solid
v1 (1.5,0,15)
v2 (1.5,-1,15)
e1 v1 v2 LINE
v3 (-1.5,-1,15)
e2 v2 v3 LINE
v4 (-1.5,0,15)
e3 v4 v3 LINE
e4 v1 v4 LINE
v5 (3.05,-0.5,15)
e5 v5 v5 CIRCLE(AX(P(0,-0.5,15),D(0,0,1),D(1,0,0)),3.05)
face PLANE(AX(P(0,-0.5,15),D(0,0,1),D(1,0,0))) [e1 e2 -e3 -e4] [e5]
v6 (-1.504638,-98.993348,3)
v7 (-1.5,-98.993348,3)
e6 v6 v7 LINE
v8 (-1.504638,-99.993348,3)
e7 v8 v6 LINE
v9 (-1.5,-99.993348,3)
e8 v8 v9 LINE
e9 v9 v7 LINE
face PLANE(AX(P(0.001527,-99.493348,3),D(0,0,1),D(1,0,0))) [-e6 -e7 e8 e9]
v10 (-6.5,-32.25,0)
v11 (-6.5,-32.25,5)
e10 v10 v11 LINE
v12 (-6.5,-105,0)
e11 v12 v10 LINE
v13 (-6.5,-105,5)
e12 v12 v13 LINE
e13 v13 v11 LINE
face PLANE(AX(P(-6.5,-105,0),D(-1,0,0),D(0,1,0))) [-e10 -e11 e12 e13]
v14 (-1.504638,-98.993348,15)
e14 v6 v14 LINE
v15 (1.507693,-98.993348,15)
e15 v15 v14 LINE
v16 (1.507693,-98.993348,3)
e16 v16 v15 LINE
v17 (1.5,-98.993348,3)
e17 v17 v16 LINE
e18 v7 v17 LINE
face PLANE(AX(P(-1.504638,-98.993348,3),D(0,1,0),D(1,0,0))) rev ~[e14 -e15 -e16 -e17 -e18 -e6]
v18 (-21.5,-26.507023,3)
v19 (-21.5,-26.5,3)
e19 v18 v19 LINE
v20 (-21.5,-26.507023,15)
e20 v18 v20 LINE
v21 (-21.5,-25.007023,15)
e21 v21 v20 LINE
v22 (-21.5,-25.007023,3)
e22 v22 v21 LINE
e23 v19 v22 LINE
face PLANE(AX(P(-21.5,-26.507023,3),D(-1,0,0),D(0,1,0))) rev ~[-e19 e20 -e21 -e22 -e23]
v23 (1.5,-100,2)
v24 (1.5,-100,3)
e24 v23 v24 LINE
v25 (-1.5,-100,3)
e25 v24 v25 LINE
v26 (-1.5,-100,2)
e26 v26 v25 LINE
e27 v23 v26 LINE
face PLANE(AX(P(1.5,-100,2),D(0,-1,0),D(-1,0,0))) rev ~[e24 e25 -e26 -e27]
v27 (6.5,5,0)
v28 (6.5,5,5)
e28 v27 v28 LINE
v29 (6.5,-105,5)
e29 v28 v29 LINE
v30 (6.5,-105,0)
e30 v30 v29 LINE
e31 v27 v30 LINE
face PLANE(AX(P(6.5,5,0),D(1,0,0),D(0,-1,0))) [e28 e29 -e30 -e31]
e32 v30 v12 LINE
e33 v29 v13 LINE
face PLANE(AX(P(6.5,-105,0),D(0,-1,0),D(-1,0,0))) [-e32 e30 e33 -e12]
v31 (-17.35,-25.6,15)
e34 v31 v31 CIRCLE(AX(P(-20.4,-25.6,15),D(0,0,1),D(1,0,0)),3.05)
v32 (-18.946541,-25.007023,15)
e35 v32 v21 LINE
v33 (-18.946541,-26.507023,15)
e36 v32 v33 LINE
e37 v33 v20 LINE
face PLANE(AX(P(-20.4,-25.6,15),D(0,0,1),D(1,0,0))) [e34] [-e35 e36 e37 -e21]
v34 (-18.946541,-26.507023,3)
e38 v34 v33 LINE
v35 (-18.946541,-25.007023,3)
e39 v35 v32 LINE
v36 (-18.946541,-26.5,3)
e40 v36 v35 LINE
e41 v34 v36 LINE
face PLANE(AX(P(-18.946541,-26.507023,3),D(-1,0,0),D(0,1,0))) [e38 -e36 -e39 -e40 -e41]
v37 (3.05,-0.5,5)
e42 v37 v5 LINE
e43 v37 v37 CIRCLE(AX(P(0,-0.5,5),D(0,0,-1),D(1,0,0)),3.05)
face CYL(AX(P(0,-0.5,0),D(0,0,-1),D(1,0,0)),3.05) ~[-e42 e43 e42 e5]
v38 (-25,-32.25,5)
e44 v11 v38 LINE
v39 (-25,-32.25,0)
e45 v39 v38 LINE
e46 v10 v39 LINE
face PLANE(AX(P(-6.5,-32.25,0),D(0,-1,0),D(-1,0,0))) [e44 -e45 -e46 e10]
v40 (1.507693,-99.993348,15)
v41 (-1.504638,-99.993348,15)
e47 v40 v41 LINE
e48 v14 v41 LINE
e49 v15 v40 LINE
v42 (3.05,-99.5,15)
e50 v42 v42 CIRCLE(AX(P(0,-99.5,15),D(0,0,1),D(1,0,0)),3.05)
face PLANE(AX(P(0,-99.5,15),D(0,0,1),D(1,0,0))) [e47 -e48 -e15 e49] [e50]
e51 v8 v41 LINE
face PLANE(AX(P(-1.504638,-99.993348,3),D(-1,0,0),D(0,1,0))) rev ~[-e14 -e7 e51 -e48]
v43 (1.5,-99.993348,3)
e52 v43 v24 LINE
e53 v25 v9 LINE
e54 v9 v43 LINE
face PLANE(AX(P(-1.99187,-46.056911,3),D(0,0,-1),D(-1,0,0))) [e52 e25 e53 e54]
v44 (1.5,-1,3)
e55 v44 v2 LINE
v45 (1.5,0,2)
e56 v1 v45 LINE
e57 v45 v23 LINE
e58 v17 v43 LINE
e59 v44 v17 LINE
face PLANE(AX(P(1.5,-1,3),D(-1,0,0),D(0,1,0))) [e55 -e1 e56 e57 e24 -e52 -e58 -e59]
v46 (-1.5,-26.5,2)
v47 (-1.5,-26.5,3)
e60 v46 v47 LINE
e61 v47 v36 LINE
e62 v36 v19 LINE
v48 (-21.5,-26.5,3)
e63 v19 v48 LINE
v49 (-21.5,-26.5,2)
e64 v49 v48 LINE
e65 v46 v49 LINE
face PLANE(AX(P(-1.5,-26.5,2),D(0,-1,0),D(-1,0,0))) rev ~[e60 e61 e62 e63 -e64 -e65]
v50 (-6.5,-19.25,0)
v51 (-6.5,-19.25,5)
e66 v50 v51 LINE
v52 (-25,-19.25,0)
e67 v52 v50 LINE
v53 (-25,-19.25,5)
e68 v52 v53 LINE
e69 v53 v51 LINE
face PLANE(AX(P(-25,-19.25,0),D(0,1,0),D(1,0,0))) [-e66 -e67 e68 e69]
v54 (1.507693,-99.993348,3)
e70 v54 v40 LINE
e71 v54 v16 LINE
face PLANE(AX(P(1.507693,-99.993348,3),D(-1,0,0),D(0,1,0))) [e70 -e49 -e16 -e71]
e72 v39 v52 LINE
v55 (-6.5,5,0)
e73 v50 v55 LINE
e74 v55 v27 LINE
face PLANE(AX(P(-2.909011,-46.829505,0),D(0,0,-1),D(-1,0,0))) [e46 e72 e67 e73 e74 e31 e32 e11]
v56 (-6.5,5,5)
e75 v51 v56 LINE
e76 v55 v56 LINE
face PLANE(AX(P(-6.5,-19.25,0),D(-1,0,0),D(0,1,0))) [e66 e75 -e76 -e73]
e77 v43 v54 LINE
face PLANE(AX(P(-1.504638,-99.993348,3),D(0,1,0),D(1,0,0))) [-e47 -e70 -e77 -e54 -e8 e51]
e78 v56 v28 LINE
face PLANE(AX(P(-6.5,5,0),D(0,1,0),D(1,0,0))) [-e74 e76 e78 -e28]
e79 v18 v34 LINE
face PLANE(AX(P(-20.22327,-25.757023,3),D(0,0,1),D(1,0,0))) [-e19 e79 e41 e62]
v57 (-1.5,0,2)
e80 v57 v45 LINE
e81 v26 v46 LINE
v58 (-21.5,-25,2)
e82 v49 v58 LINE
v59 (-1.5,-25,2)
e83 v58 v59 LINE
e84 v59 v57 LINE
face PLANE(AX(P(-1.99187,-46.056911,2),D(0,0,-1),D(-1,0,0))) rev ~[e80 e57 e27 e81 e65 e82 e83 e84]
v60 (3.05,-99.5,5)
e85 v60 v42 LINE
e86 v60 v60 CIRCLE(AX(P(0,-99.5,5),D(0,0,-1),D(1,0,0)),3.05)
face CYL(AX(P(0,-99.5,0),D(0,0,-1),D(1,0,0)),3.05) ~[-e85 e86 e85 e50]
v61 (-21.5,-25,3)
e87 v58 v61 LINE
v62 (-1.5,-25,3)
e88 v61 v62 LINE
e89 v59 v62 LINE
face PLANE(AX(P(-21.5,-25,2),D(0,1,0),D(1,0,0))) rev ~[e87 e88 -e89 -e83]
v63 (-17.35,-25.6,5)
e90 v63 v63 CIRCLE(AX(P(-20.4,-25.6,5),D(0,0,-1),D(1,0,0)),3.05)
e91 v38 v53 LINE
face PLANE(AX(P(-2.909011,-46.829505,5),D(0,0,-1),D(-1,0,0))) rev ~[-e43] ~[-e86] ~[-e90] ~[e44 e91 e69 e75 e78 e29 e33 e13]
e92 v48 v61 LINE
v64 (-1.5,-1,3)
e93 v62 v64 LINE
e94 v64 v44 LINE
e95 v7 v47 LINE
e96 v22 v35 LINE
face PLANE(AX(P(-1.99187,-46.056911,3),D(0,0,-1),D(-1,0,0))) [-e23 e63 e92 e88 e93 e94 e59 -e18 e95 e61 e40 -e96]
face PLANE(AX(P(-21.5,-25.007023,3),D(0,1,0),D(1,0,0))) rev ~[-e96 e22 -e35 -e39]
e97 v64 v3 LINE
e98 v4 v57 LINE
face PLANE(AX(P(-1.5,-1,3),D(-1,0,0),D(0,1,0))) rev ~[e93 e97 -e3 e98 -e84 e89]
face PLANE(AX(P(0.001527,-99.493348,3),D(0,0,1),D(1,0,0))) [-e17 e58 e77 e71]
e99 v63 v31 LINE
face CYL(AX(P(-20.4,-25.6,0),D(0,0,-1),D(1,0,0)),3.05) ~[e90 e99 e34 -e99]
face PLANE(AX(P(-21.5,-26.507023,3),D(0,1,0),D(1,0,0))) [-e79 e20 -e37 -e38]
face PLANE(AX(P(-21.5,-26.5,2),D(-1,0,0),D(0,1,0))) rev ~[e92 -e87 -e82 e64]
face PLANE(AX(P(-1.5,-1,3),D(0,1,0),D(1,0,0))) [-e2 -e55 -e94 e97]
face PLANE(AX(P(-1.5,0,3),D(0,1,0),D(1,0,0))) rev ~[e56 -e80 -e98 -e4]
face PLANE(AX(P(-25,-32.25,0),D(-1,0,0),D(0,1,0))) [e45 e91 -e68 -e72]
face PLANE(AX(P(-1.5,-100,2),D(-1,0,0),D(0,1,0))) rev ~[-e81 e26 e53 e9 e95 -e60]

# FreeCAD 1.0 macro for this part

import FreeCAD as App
import Part
import Sketcher
from FreeCAD import Vector
Q = App.Units.Quantity

doc = App.newDocument("Part")
body = doc.addObject("PartDesign::Body", "Body")

# Sketch on XY plane
sketch1 = body.newObject("Sketcher::SketchObject", "Sketch")
sketch1.AttachmentSupport = (doc.getObject("XY_Plane"), [""])
sketch1.MapMode = "FlatFace"
sketch1.AttachmentOffset = App.Placement(Vector(0, 0, 2), App.Rotation())
sketch1.addGeometry(Part.LineSegment(Vector(1.5, 0, 0), Vector(-1.5, 0, 0)), False)
sketch1.addGeometry(Part.LineSegment(Vector(-1.5, 0, 0), Vector(-1.5, -25, 0)), False)
sketch1.addGeometry(Part.LineSegment(Vector(-1.5, -25, 0), Vector(-21.5, -25, 0)), False)
sketch1.addGeometry(Part.LineSegment(Vector(-21.5, -25, 0), Vector(-21.5, -26.5, 0)), False)
sketch1.addGeometry(Part.LineSegment(Vector(-21.5, -26.5, 0), Vector(-1.5, -26.5, 0)), False)
sketch1.addGeometry(Part.LineSegment(Vector(-1.5, -26.5, 0), Vector(-1.5, -100, 0)), False)
sketch1.addGeometry(Part.LineSegment(Vector(-1.5, -100, 0), Vector(1.5, -100, 0)), False)
sketch1.addGeometry(Part.LineSegment(Vector(1.5, -100, 0), Vector(1.5, 0, 0)), False)
sketch1.addConstraint(Sketcher.Constraint("Coincident", 0, 2, 1, 1))
sketch1.addConstraint(Sketcher.Constraint("Coincident", 1, 2, 2, 1))
sketch1.addConstraint(Sketcher.Constraint("Coincident", 2, 2, 3, 1))
sketch1.addConstraint(Sketcher.Constraint("Coincident", 3, 2, 4, 1))
sketch1.addConstraint(Sketcher.Constraint("Coincident", 4, 2, 5, 1))
sketch1.addConstraint(Sketcher.Constraint("Coincident", 5, 2, 6, 1))
sketch1.addConstraint(Sketcher.Constraint("Coincident", 6, 2, 7, 1))
sketch1.addConstraint(Sketcher.Constraint("Coincident", 7, 2, 0, 1))
sketch1.addConstraint(Sketcher.Constraint("Horizontal", 0))
sketch1.addConstraint(Sketcher.Constraint("Vertical", 1))
sketch1.addConstraint(Sketcher.Constraint("Horizontal", 2))
sketch1.addConstraint(Sketcher.Constraint("Vertical", 3))
sketch1.addConstraint(Sketcher.Constraint("Horizontal", 4))
sketch1.addConstraint(Sketcher.Constraint("Vertical", 5))
sketch1.addConstraint(Sketcher.Constraint("Horizontal", 6))
sketch1.addConstraint(Sketcher.Constraint("Vertical", 7))
sketch1.addConstraint(Sketcher.Constraint("Symmetric", 0, 2, 7, 2, -1, 1))
sketch1.addConstraint(Sketcher.Constraint("Vertical", 1, 2, 4, 2))
sketch1.addConstraint(Sketcher.Constraint("DistanceX", 0, 2, 0, 1, Q("3 mm")))
sketch1.addConstraint(Sketcher.Constraint("DistanceX", 2, 2, 2, 1, Q("20 mm")))
sketch1.addConstraint(Sketcher.Constraint("DistanceY", 1, 2, 1, 1, Q("25 mm")))
sketch1.addConstraint(Sketcher.Constraint("DistanceY", 7, 1, 7, 2, Q("100 mm")))
sketch1.addConstraint(Sketcher.Constraint("DistanceY", 3, 2, 3, 1, Q("1.5 mm")))
pad1 = body.newObject("PartDesign::Pad", "Pad")
pad1.Profile = sketch1
pad1.Length = 1

# Sketch on XY plane
sketch2 = body.newObject("Sketcher::SketchObject", "Sketch001")
sketch2.AttachmentSupport = (doc.getObject("XY_Plane"), [""])
sketch2.MapMode = "FlatFace"
sketch2.AttachmentOffset = App.Placement(Vector(0, 0, 3), App.Rotation())
sketch2.addGeometry(Part.LineSegment(Vector(-1.5, 0, 0), Vector(-1.5, -1, 0)), False)
sketch2.addGeometry(Part.LineSegment(Vector(-1.5, -1, 0), Vector(1.5, -1, 0)), False)
sketch2.addGeometry(Part.LineSegment(Vector(1.5, -1, 0), Vector(1.5, 0, 0)), False)
sketch2.addGeometry(Part.LineSegment(Vector(1.5, 0, 0), Vector(-1.5, 0, 0)), False)
sketch2.addGeometry(Part.LineSegment(Vector(-1.504638, -98.993348, 0), Vector(-1.504638, -99.993348, 0)), False)
sketch2.addGeometry(Part.LineSegment(Vector(-1.504638, -99.993348, 0), Vector(1.507693, -99.993348, 0)), False)
sketch2.addGeometry(Part.LineSegment(Vector(1.507693, -99.993348, 0), Vector(1.507693, -98.993348, 0)), False)
sketch2.addGeometry(Part.LineSegment(Vector(1.507693, -98.993348, 0), Vector(-1.504638, -98.993348, 0)), False)
sketch2.addGeometry(Part.LineSegment(Vector(-21.5, -25.007023, 0), Vector(-21.5, -26.507023, 0)), False)
sketch2.addGeometry(Part.LineSegment(Vector(-21.5, -26.507023, 0), Vector(-18.946541, -26.507023, 0)), False)
sketch2.addGeometry(Part.LineSegment(Vector(-18.946541, -26.507023, 0), Vector(-18.946541, -25.007023, 0)), False)
sketch2.addGeometry(Part.LineSegment(Vector(-18.946541, -25.007023, 0), Vector(-21.5, -25.007023, 0)), False)
sketch2.addConstraint(Sketcher.Constraint("Coincident", 0, 2, 1, 1))
sketch2.addConstraint(Sketcher.Constraint("Coincident", 1, 2, 2, 1))
sketch2.addConstraint(Sketcher.Constraint("Coincident", 2, 2, 3, 1))
sketch2.addConstraint(Sketcher.Constraint("Coincident", 3, 2, 0, 1))
sketch2.addConstraint(Sketcher.Constraint("Coincident", 4, 2, 5, 1))
sketch2.addConstraint(Sketcher.Constraint("Coincident", 5, 2, 6, 1))
sketch2.addConstraint(Sketcher.Constraint("Coincident", 6, 2, 7, 1))
sketch2.addConstraint(Sketcher.Constraint("Coincident", 7, 2, 4, 1))
sketch2.addConstraint(Sketcher.Constraint("Coincident", 8, 2, 9, 1))
sketch2.addConstraint(Sketcher.Constraint("Coincident", 9, 2, 10, 1))
sketch2.addConstraint(Sketcher.Constraint("Coincident", 10, 2, 11, 1))
sketch2.addConstraint(Sketcher.Constraint("Coincident", 11, 2, 8, 1))
sketch2.addConstraint(Sketcher.Constraint("Vertical", 0))
sketch2.addConstraint(Sketcher.Constraint("Horizontal", 1))
sketch2.addConstraint(Sketcher.Constraint("Vertical", 2))
sketch2.addConstraint(Sketcher.Constraint("Horizontal", 3))
sketch2.addConstraint(Sketcher.Constraint("Vertical", 4))
sketch2.addConstraint(Sketcher.Constraint("Horizontal", 5))
sketch2.addConstraint(Sketcher.Constraint("Vertical", 6))
sketch2.addConstraint(Sketcher.Constraint("Horizontal", 7))
sketch2.addConstraint(Sketcher.Constraint("Vertical", 8))
sketch2.addConstraint(Sketcher.Constraint("Horizontal", 9))
sketch2.addConstraint(Sketcher.Constraint("Vertical", 10))
sketch2.addConstraint(Sketcher.Constraint("Horizontal", 11))
sketch2.addConstraint(Sketcher.Constraint("Symmetric", 2, 2, 3, 2, -1, 1))
sketch2.addConstraint(Sketcher.Constraint("Equal", 2, 4))
sketch2.addConstraint(Sketcher.Constraint("DistanceX", 1, 1, 1, 2, Q("3 mm")))
sketch2.addConstraint(Sketcher.Constraint("DistanceY", 0, 2, 0, 1, Q("1 mm")))
sketch2.addConstraint(Sketcher.Constraint("DistanceY", 8, 2, 8, 1, Q("1.5 mm")))
sketch2.addConstraint(Sketcher.Constraint("DistanceX", 8, 2, 0, 2, Q("20 mm")))
sketch2.addConstraint(Sketcher.Constraint("DistanceX", 5, 1, 5, 2, Q("3.012331 mm")))
sketch2.addConstraint(Sketcher.Constraint("DistanceX", 9, 1, 9, 2, Q("2.553459 mm")))
sketch2.addConstraint(Sketcher.Constraint("DistanceX", 4, 2, -1, 1, Q("1.504638 mm")))
sketch2.addConstraint(Sketcher.Constraint("DistanceY", 4, 2, -1, 1, Q("99.993348 mm")))
sketch2.addConstraint(Sketcher.Constraint("DistanceY", 8, 2, -1, 1, Q("26.507023 mm")))
pad2 = body.newObject("PartDesign::Pad", "Pad001")
pad2.Profile = sketch2
pad2.Length = 20
body2 = doc.addObject("PartDesign::Body", "Body001")

# Sketch on XY plane
sketch3 = body2.newObject("Sketcher::SketchObject", "Sketch002")
sketch3.AttachmentSupport = (doc.getObject("XY_Plane001"), [""])
sketch3.MapMode = "FlatFace"
sketch3.addGeometry(Part.Circle(Vector(0, -0.5, 0), Vector(0, 0, 1), 3.05), False)
sketch3.addConstraint(Sketcher.Constraint("PointOnObject", 0, 3, -2))
sketch3.addConstraint(Sketcher.Constraint("Diameter", 0, Q("6.1 mm")))
sketch3.addConstraint(Sketcher.Constraint("DistanceY", 0, 3, -1, 1, Q("0.5 mm")))
pad3 = body2.newObject("PartDesign::Pad", "Pad002")
pad3.Profile = sketch3
pad3.Length = 15
body3 = doc.addObject("PartDesign::Body", "Body002")

# Sketch on XY plane
sketch4 = body3.newObject("Sketcher::SketchObject", "Sketch003")
sketch4.AttachmentSupport = (doc.getObject("XY_Plane002"), [""])
sketch4.MapMode = "FlatFace"
sketch4.addGeometry(Part.Circle(Vector(-20.4, -25.6, 0), Vector(0, 0, 1), 3.05), False)
sketch4.addConstraint(Sketcher.Constraint("Diameter", 0, Q("6.1 mm")))
sketch4.addConstraint(Sketcher.Constraint("DistanceX", 0, 3, -1, 1, Q("20.4 mm")))
sketch4.addConstraint(Sketcher.Constraint("DistanceY", 0, 3, -1, 1, Q("25.6 mm")))
pad4 = body3.newObject("PartDesign::Pad", "Pad003")
pad4.Profile = sketch4
pad4.Length = 15
body4 = doc.addObject("PartDesign::Body", "Body003")

# Sketch on XY plane
sketch5 = body4.newObject("Sketcher::SketchObject", "Sketch004")
sketch5.AttachmentSupport = (doc.getObject("XY_Plane003"), [""])
sketch5.MapMode = "FlatFace"
sketch5.addGeometry(Part.LineSegment(Vector(6.5, 5, 0), Vector(-6.5, 5, 0)), False)
sketch5.addGeometry(Part.LineSegment(Vector(-6.5, 5, 0), Vector(-6.5, -19.25, 0)), False)
sketch5.addGeometry(Part.LineSegment(Vector(-6.5, -19.25, 0), Vector(-25, -19.25, 0)), False)
sketch5.addGeometry(Part.LineSegment(Vector(-25, -19.25, 0), Vector(-25, -32.25, 0)), False)
sketch5.addGeometry(Part.LineSegment(Vector(-25, -32.25, 0), Vector(-6.5, -32.25, 0)), False)
sketch5.addGeometry(Part.LineSegment(Vector(-6.5, -32.25, 0), Vector(-6.5, -105, 0)), False)
sketch5.addGeometry(Part.LineSegment(Vector(-6.5, -105, 0), Vector(6.5, -105, 0)), False)
sketch5.addGeometry(Part.LineSegment(Vector(6.5, -105, 0), Vector(6.5, 5, 0)), False)
sketch5.addConstraint(Sketcher.Constraint("Coincident", 0, 2, 1, 1))
sketch5.addConstraint(Sketcher.Constraint("Coincident", 1, 2, 2, 1))
sketch5.addConstraint(Sketcher.Constraint("Coincident", 2, 2, 3, 1))
sketch5.addConstraint(Sketcher.Constraint("Coincident", 3, 2, 4, 1))
sketch5.addConstraint(Sketcher.Constraint("Coincident", 4, 2, 5, 1))
sketch5.addConstraint(Sketcher.Constraint("Coincident", 5, 2, 6, 1))
sketch5.addConstraint(Sketcher.Constraint("Coincident", 6, 2, 7, 1))
sketch5.addConstraint(Sketcher.Constraint("Coincident", 7, 2, 0, 1))
sketch5.addConstraint(Sketcher.Constraint("Horizontal", 0))
sketch5.addConstraint(Sketcher.Constraint("Vertical", 1))
sketch5.addConstraint(Sketcher.Constraint("Horizontal", 2))
sketch5.addConstraint(Sketcher.Constraint("Vertical", 3))
sketch5.addConstraint(Sketcher.Constraint("Horizontal", 4))
sketch5.addConstraint(Sketcher.Constraint("Vertical", 5))
sketch5.addConstraint(Sketcher.Constraint("Horizontal", 6))
sketch5.addConstraint(Sketcher.Constraint("Vertical", 7))
sketch5.addConstraint(Sketcher.Constraint("Vertical", 1, 2, 4, 2))
sketch5.addConstraint(Sketcher.Constraint("Equal", 6, 3))
sketch5.addConstraint(Sketcher.Constraint("DistanceX", 0, 2, 0, 1, Q("13 mm")))
sketch5.addConstraint(Sketcher.Constraint("DistanceY", 7, 1, 7, 2, Q("110 mm")))
sketch5.addConstraint(Sketcher.Constraint("DistanceX", 2, 2, 2, 1, Q("18.5 mm")))
sketch5.addConstraint(Sketcher.Constraint("DistanceY", -1, 1, 0, 2, Q("5 mm")))
sketch5.addConstraint(Sketcher.Constraint("DistanceX", 2, 2, -1, 1, Q("25 mm")))
sketch5.addConstraint(Sketcher.Constraint("DistanceY", 1, 2, 1, 1, Q("24.25 mm")))
pad5 = body4.newObject("PartDesign::Pad", "Pad004")
pad5.Profile = sketch5
pad5.Length = 5
body5 = doc.addObject("PartDesign::Body", "Body004")
body5.AllowCompound = True

# Sketch on XY plane
sketch6 = body5.newObject("Sketcher::SketchObject", "Sketch005")
sketch6.AttachmentSupport = (doc.getObject("XY_Plane004"), [""])
sketch6.MapMode = "FlatFace"
sketch6.addGeometry(Part.Circle(Vector(0, -99.5, 0), Vector(0, 0, 1), 3.05), False)
sketch6.addConstraint(Sketcher.Constraint("PointOnObject", 0, 3, -2))
sketch6.addConstraint(Sketcher.Constraint("Diameter", 0, Q("6.1 mm")))
sketch6.addConstraint(Sketcher.Constraint("DistanceY", 0, 3, -1, 1, Q("99.5 mm")))
pad6 = body5.newObject("PartDesign::Pad", "Pad005")
pad6.Profile = sketch6
pad6.Length = 15
doc.recompute()

boolean = body5.newObject("PartDesign::Boolean", "Boolean")
boolean.Type = "Fuse"
boolean.addObjects([body2])
doc.recompute()

boolean2 = body5.newObject("PartDesign::Boolean", "Boolean001")
boolean2.Type = "Fuse"
boolean2.addObjects([body3])
doc.recompute()

boolean3 = body5.newObject("PartDesign::Boolean", "Boolean002")
boolean3.Type = "Fuse"
boolean3.addObjects([body4])
doc.recompute()

boolean4 = body5.newObject("PartDesign::Boolean", "Boolean003")
boolean4.Type = "Cut"
boolean4.addObjects([body])

doc.recompute()
